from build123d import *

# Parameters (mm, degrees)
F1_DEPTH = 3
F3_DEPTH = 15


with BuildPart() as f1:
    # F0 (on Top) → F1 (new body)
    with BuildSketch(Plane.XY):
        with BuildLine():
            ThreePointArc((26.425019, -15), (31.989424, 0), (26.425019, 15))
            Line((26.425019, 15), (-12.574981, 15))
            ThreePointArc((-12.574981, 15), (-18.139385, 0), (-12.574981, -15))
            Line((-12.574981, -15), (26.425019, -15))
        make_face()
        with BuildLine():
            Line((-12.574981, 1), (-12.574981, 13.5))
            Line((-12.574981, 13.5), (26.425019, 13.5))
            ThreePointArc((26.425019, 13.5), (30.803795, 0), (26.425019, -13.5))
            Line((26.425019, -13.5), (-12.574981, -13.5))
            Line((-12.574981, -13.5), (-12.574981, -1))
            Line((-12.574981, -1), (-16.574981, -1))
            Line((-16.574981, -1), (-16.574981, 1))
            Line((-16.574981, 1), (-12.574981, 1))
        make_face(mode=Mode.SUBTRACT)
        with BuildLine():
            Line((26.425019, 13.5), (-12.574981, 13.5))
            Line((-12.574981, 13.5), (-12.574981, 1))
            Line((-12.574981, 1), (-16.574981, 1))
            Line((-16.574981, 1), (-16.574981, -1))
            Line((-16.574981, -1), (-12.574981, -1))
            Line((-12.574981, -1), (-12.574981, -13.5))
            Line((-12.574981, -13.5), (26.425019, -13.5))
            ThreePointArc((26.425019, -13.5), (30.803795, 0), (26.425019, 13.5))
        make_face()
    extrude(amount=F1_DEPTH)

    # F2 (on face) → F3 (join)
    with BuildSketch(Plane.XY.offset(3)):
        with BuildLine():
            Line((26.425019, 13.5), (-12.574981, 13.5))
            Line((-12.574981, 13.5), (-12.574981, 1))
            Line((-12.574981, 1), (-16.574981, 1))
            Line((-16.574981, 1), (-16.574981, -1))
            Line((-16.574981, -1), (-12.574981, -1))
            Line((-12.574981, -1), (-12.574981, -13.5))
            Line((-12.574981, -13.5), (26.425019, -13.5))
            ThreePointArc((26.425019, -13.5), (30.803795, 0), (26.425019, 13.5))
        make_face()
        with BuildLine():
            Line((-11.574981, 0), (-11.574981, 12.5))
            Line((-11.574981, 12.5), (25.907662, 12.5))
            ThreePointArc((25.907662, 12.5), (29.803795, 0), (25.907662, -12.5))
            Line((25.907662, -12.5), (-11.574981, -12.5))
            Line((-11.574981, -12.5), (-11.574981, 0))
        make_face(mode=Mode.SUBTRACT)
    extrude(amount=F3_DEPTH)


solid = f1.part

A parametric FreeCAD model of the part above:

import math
import FreeCAD as App
import Part
import Sketcher
from FreeCAD import Vector
Q = App.Units.Quantity

doc = App.newDocument("Part")
body = doc.addObject("PartDesign::Body", "Body")

# Sketch on XY plane
sketch1 = doc.addObject("Sketcher::SketchObject", "Sketch")
body.addObject(sketch1)
sketch1.AttachmentSupport = (doc.XY_Plane, [""])
sketch1.MapMode = "FlatFace"
sketch1.addGeometry(Part.ArcOfCircle(Part.Circle(Vector(9, 0, 0), Vector(0, 0, 1), 23), math.radians(-41), math.radians(41)), False)
sketch1.addGeometry(Part.LineSegment(Vector(26, 15, 0), Vector(-13, 15, 0)), False)
sketch1.addGeometry(Part.ArcOfCircle(Part.Circle(Vector(5, 0, 0), Vector(0, 0, 1), 23), math.radians(139), math.radians(221)), False)
sketch1.addGeometry(Part.LineSegment(Vector(-13, -15, 0), Vector(26, -15, 0)), False)
sketch1.addConstraint(Sketcher.Constraint("Coincident", 0, 2, 1, 1))
sketch1.addConstraint(Sketcher.Constraint("Coincident", 1, 2, 2, 1))
sketch1.addConstraint(Sketcher.Constraint("Coincident", 2, 2, 3, 1))
sketch1.addConstraint(Sketcher.Constraint("Coincident", 3, 2, 0, 1))
sketch1.addConstraint(Sketcher.Constraint("Horizontal", 1))
sketch1.addConstraint(Sketcher.Constraint("Horizontal", 3))
sketch1.addConstraint(Sketcher.Constraint("Symmetric", 1, 2, 2, 2, -1))
sketch1.addConstraint(Sketcher.Constraint("PointOnObject", 0, 3, -1))
sketch1.addConstraint(Sketcher.Constraint("Radius", 2, Q("23.000001 mm")))
sketch1.addConstraint(Sketcher.Constraint("DistanceX", 1, 2, 1, 1, Q("39 mm")))
sketch1.addConstraint(Sketcher.Constraint("DistanceY", -1, 1, 0, 2, Q("15 mm")))
sketch1.addConstraint(Sketcher.Constraint("Radius", 0, Q("22.999998 mm")))
sketch1.addConstraint(Sketcher.Constraint("DistanceX", -1, 1, 0, 2, Q("26.425019 mm")))
pad1 = doc.addObject("PartDesign::Pad", "Pad")
body.addObject(pad1)
pad1.Profile = sketch1
pad1.Length = 3

# Sketch on XY plane
sketch2 = doc.addObject("Sketcher::SketchObject", "Sketch001")
body.addObject(sketch2)
sketch2.AttachmentSupport = (doc.XY_Plane, [""])
sketch2.MapMode = "FlatFace"
sketch2.AttachmentOffset = App.Placement(Vector(0, 0, 3), App.Rotation())
sketch2.addGeometry(Part.LineSegment(Vector(26.4, 13.5, 0), Vector(-12.6, 13.5, 0)), False)
sketch2.addGeometry(Part.LineSegment(Vector(-12.6, 13.5, 0), Vector(-12.6, 1, 0)), False)
sketch2.addGeometry(Part.LineSegment(Vector(-12.6, 1, 0), Vector(-16.6, 1, 0)), False)
sketch2.addGeometry(Part.LineSegment(Vector(-16.6, 1, 0), Vector(-16.6, -1, 0)), False)
sketch2.addGeometry(Part.LineSegment(Vector(-16.6, -1, 0), Vector(-12.6, -1, 0)), False)
sketch2.addGeometry(Part.LineSegment(Vector(-12.6, -1, 0), Vector(-12.6, -13.5, 0)), False)
sketch2.addGeometry(Part.LineSegment(Vector(-12.6, -13.5, 0), Vector(26.4, -13.5, 0)), False)
sketch2.addGeometry(Part.ArcOfCircle(Part.Circle(Vector(7.8, 0, 0), Vector(0, 0, 1), 23), math.radians(-36), math.radians(36)), False)
sketch2.addGeometry(Part.LineSegment(Vector(-11.6, -12.5, 0), Vector(-11.6, 12.5, 0)), False)
sketch2.addGeometry(Part.LineSegment(Vector(-11.6, 12.5, 0), Vector(25.9, 12.5, 0)), False)
sketch2.addGeometry(Part.ArcOfCircle(Part.Circle(Vector(7.8, 0, 0), Vector(0, 0, 1), 22), math.radians(-35), math.radians(35)), False)
sketch2.addGeometry(Part.LineSegment(Vector(25.9, -12.5, 0), Vector(-11.6, -12.5, 0)), False)
sketch2.addConstraint(Sketcher.Constraint("Coincident", 0, 2, 1, 1))
sketch2.addConstraint(Sketcher.Constraint("Coincident", 1, 2, 2, 1))
sketch2.addConstraint(Sketcher.Constraint("Coincident", 2, 2, 3, 1))
sketch2.addConstraint(Sketcher.Constraint("Coincident", 3, 2, 4, 1))
sketch2.addConstraint(Sketcher.Constraint("Coincident", 4, 2, 5, 1))
sketch2.addConstraint(Sketcher.Constraint("Coincident", 5, 2, 6, 1))
sketch2.addConstraint(Sketcher.Constraint("Coincident", 6, 2, 7, 1))
sketch2.addConstraint(Sketcher.Constraint("Coincident", 7, 2, 0, 1))
sketch2.addConstraint(Sketcher.Constraint("Coincident", 8, 2, 9, 1))
sketch2.addConstraint(Sketcher.Constraint("Coincident", 9, 2, 10, 2))
sketch2.addConstraint(Sketcher.Constraint("Coincident", 10, 1, 11, 1))
sketch2.addConstraint(Sketcher.Constraint("Coincident", 11, 2, 8, 1))
sketch2.addConstraint(Sketcher.Constraint("Horizontal", 0))
sketch2.addConstraint(Sketcher.Constraint("Vertical", 1))
sketch2.addConstraint(Sketcher.Constraint("Horizontal", 2))
sketch2.addConstraint(Sketcher.Constraint("Vertical", 3))
sketch2.addConstraint(Sketcher.Constraint("Horizontal", 4))
sketch2.addConstraint(Sketcher.Constraint("Vertical", 5))
sketch2.addConstraint(Sketcher.Constraint("Horizontal", 6))
sketch2.addConstraint(Sketcher.Constraint("Vertical", 8))
sketch2.addConstraint(Sketcher.Constraint("Horizontal", 9))
sketch2.addConstraint(Sketcher.Constraint("Horizontal", 11))
sketch2.addConstraint(Sketcher.Constraint("Coincident", 10, 3, 7, 3))
sketch2.addConstraint(Sketcher.Constraint("Symmetric", 1, 2, 4, 2, -1))
sketch2.addConstraint(Sketcher.Constraint("Symmetric", 6, 2, 7, 2, -1))
sketch2.addConstraint(Sketcher.Constraint("Vertical", 9, 2, 10, 1))
sketch2.addConstraint(Sketcher.Constraint("Radius", 7, Q("22.999998 mm")))
sketch2.addConstraint(Sketcher.Constraint("Radius", 10, Q("22 mm")))
sketch2.addConstraint(Sketcher.Constraint("DistanceX", 0, 2, 0, 1, Q("39 mm")))
sketch2.addConstraint(Sketcher.Constraint("DistanceX", 2, 2, 2, 1, Q("4 mm")))
sketch2.addConstraint(Sketcher.Constraint("DistanceY", 3, 2, 3, 1, Q("2 mm")))
sketch2.addConstraint(Sketcher.Constraint("DistanceY", 8, 1, 8, 2, Q("25 mm")))
sketch2.addConstraint(Sketcher.Constraint("DistanceY", 1, 2, 1, 1, Q("12.5 mm")))
sketch2.addConstraint(Sketcher.Constraint("DistanceX", 0, 2, 8, 2, Q("1 mm")))
sketch2.addConstraint(Sketcher.Constraint("DistanceX", 0, 2, -1, 1, Q("12.574981 mm")))
pad2 = doc.addObject("PartDesign::Pad", "Pad001")
body.addObject(pad2)
pad2.Profile = sketch2
pad2.Length = 15

doc.recompute()
